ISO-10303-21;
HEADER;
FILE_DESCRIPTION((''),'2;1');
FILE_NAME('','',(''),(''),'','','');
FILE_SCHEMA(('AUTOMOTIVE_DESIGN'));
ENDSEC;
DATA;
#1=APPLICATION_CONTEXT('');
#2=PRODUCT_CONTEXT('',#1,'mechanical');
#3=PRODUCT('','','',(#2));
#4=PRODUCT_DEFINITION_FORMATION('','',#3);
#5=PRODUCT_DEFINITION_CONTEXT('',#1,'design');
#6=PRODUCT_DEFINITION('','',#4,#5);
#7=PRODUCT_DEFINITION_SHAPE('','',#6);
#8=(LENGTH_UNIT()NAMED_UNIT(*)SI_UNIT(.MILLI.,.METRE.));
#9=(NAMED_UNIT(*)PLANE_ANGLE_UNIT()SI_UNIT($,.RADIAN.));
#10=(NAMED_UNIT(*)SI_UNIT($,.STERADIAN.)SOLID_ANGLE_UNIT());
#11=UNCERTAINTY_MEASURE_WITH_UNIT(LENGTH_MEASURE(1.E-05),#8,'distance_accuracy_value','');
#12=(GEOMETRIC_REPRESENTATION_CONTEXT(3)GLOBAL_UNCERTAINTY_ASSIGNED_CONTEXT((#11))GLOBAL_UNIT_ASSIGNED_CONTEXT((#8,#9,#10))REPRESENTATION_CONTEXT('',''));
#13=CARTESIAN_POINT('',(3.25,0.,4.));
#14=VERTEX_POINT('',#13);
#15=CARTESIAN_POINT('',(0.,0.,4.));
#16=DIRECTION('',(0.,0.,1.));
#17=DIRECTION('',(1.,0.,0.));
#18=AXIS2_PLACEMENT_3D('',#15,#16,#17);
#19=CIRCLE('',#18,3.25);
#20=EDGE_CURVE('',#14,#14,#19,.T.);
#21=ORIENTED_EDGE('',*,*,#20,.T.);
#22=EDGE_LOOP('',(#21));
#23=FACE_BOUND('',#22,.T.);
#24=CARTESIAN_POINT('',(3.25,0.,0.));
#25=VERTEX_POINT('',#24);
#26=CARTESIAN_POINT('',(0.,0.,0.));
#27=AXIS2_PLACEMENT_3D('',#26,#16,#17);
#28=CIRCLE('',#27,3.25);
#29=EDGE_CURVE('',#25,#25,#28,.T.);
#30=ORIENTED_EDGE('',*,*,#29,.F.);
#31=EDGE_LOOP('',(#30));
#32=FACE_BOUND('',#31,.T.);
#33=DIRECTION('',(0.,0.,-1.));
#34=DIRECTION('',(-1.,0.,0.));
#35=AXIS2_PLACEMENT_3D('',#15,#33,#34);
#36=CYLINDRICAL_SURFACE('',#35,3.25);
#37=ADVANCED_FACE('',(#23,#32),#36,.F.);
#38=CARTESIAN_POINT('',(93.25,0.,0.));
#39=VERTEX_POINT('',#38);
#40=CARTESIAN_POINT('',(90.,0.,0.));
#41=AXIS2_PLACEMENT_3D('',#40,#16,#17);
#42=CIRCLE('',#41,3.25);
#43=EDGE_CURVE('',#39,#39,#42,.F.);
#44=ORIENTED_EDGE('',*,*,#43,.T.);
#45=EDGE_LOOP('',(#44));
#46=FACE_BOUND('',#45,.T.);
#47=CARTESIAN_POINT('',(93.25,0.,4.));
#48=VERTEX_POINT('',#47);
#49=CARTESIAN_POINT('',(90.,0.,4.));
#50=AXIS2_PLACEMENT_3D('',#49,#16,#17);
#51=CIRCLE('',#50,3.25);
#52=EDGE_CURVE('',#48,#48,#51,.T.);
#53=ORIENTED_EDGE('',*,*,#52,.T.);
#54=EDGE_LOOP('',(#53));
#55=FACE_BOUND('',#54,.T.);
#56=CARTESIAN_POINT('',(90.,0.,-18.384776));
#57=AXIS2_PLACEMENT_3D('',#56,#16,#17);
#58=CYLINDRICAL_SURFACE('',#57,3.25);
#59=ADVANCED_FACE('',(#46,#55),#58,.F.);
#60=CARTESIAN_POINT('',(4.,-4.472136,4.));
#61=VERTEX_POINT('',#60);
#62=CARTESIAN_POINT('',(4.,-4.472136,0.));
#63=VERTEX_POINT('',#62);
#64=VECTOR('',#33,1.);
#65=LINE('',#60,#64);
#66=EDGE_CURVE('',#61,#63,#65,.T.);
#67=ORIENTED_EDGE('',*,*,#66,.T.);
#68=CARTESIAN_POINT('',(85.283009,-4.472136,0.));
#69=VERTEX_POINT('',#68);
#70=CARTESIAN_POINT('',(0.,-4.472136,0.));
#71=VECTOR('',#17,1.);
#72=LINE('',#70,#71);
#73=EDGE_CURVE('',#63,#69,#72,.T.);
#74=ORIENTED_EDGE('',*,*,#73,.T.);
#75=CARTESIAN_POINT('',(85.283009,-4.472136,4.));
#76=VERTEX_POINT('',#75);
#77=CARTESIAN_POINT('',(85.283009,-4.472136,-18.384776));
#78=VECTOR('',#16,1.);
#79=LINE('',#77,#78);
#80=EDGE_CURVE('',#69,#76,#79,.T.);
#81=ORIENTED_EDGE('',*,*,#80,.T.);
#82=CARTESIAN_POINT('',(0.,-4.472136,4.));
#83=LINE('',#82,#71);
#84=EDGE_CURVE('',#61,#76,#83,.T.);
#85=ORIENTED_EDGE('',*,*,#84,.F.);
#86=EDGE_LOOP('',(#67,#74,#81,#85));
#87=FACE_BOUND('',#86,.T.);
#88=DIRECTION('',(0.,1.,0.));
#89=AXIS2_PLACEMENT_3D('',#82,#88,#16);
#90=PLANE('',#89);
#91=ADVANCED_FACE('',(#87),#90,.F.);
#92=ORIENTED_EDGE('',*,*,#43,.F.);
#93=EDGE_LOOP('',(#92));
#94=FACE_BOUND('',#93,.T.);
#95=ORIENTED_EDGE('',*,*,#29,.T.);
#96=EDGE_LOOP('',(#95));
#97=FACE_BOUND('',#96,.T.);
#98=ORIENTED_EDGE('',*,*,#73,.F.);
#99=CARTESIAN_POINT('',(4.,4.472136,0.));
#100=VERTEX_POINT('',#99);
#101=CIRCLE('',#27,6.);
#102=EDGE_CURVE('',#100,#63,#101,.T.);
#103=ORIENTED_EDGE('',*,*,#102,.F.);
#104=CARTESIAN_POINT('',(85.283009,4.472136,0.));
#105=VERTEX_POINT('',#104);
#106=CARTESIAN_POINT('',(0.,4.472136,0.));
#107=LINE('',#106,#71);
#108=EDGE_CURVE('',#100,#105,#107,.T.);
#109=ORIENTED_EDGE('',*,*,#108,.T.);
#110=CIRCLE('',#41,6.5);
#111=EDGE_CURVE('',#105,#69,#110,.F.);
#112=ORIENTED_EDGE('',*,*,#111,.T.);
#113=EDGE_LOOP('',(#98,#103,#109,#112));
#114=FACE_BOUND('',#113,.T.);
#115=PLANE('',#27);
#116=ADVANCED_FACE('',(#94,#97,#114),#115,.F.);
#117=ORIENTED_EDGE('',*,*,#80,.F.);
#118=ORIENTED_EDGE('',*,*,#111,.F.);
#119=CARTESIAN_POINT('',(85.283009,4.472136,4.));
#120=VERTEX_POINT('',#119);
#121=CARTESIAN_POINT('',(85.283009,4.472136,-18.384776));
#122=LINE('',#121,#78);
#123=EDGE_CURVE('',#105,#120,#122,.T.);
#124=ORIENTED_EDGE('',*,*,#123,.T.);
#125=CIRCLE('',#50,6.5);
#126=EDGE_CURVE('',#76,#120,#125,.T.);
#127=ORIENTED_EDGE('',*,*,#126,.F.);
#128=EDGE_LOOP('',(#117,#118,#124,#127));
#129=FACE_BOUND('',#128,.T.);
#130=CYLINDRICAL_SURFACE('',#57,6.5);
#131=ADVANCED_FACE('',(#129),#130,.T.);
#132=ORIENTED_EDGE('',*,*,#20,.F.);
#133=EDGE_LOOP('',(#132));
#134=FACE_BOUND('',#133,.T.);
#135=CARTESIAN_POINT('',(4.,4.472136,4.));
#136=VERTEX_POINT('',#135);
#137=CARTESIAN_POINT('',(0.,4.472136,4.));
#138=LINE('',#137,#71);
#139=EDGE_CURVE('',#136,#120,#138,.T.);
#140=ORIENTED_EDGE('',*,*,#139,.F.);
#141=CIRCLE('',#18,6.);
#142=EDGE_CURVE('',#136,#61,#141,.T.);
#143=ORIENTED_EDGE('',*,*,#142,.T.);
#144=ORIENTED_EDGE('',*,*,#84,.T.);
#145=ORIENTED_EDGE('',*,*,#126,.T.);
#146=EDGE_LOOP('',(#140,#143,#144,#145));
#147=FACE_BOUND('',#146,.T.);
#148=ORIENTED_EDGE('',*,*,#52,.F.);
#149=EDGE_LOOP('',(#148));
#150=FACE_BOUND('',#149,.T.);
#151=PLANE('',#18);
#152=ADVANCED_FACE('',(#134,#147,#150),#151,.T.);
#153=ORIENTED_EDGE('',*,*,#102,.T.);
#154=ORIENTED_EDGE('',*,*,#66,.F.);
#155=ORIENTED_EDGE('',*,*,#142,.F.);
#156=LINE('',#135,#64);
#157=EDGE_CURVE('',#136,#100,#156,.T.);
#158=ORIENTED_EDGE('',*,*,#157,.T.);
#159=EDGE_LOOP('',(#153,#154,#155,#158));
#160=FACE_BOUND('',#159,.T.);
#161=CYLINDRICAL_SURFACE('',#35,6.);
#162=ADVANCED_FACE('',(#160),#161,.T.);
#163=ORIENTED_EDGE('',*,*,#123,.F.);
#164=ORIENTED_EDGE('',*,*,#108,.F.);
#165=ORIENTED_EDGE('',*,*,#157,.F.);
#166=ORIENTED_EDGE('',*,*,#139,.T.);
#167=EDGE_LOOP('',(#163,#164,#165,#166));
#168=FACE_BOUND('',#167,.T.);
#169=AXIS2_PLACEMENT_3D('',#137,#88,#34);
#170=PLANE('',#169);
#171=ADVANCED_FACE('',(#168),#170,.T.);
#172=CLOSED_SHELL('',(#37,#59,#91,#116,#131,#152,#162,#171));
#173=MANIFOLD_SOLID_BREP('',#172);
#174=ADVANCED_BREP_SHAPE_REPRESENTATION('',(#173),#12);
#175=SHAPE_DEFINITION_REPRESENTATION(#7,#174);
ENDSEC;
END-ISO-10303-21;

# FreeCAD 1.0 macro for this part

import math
import FreeCAD as App
import Part
import Sketcher
from FreeCAD import Vector

doc = App.newDocument("Part")
body = doc.addObject("PartDesign::Body", "Body")

sketch1 = body.newObject("Sketcher::SketchObject", "Sketch")
sketch1.AttachmentSupport = (doc.getObject("XY_Plane"), [""])
sketch1.MapMode = "FlatFace"
sketch1.addGeometry([
    Part.ArcOfCircle(Part.Circle(Vector(0, 0, 0), Vector(0, 0, 1), 6), math.radians(48), math.radians(312)),
    Part.LineSegment(Vector(4, -4.5, 0), Vector(90, -4.5, 0)),
    Part.LineSegment(Vector(90, -4.5, 0), Vector(90, 4.5, 0)),
    Part.LineSegment(Vector(90, 4.5, 0), Vector(4, 4.5, 0)),
    Part.Circle(Vector(0, 0, 0), Vector(0, 0, 1), 3.2),
], False)
sketch1.addConstraint([
    Sketcher.Constraint("Coincident", 0, 2, 1, 1),
    Sketcher.Constraint("Coincident", 1, 2, 2, 1),
    Sketcher.Constraint("Coincident", 2, 2, 3, 1),
    Sketcher.Constraint("Coincident", 3, 2, 0, 1),
    Sketcher.Constraint("Horizontal", 1),
    Sketcher.Constraint("Vertical", 2),
    Sketcher.Constraint("Horizontal", 3),
    Sketcher.Constraint("Coincident", 0, 3, -1, 1),
    Sketcher.Constraint("Coincident", 4, 3, -1, 1),
    Sketcher.Constraint("Vertical", 0, 2, 3, 2),
    Sketcher.Constraint("Radius", 0, 6.0),
    Sketcher.Constraint("Diameter", 4, 6.5),
    Sketcher.Constraint("DistanceX", 1, 1, 1, 2, 86.0),
    Sketcher.Constraint("DistanceX", -1, 1, 0, 2, 4.0),
])
pad1 = body.newObject("PartDesign::Pad", "Pad")
pad1.Profile = sketch1
pad1.Length = 4

sketch2 = body.newObject("Sketcher::SketchObject", "Sketch001")
sketch2.AttachmentSupport = (doc.getObject("XY_Plane"), [""])
sketch2.MapMode = "FlatFace"
sketch2.AttachmentOffset = App.Placement(Vector(0, 0, 4), App.Rotation())
sketch2.addGeometry([
    Part.Circle(Vector(90, 0, 0), Vector(0, 0, 1), 6.5),
    Part.Circle(Vector(90, 0, 0), Vector(0, 0, 1), 3.2),
], False)
sketch2.addConstraint([
    Sketcher.Constraint("Coincident", 1, 3, 0, 3),
    Sketcher.Constraint("PointOnObject", 0, 3, -1),
    Sketcher.Constraint("Diameter", 0, 13.0),
    Sketcher.Constraint("Diameter", 1, 6.5),
    Sketcher.Constraint("DistanceX", -1, 1, 0, 3, 90.0),
])
pad2 = body.newObject("PartDesign::Pad", "Pad001")
pad2.Profile = sketch2
pad2.Length = 4
pad2.Reversed = True

sketch3 = body.newObject("Sketcher::SketchObject", "Sketch002")
sketch3.AttachmentSupport = (doc.getObject("XY_Plane"), [""])
sketch3.MapMode = "FlatFace"
sketch3.AttachmentOffset = App.Placement(Vector(0, 0, 4), App.Rotation())
sketch3.addGeometry(Part.Circle(Vector(90, 0, 0), Vector(0, 0, 1), 3.2), False)
sketch3.addConstraint([
    Sketcher.Constraint("PointOnObject", 0, 3, -1),
    Sketcher.Constraint("Diameter", 0, 6.5),
    Sketcher.Constraint("DistanceX", -1, 1, 0, 3, 90.0),
])
pocket1 = body.newObject("PartDesign::Pocket", "Pocket")
pocket1.Profile = sketch3
pocket1.Length = 10

doc.recompute()
